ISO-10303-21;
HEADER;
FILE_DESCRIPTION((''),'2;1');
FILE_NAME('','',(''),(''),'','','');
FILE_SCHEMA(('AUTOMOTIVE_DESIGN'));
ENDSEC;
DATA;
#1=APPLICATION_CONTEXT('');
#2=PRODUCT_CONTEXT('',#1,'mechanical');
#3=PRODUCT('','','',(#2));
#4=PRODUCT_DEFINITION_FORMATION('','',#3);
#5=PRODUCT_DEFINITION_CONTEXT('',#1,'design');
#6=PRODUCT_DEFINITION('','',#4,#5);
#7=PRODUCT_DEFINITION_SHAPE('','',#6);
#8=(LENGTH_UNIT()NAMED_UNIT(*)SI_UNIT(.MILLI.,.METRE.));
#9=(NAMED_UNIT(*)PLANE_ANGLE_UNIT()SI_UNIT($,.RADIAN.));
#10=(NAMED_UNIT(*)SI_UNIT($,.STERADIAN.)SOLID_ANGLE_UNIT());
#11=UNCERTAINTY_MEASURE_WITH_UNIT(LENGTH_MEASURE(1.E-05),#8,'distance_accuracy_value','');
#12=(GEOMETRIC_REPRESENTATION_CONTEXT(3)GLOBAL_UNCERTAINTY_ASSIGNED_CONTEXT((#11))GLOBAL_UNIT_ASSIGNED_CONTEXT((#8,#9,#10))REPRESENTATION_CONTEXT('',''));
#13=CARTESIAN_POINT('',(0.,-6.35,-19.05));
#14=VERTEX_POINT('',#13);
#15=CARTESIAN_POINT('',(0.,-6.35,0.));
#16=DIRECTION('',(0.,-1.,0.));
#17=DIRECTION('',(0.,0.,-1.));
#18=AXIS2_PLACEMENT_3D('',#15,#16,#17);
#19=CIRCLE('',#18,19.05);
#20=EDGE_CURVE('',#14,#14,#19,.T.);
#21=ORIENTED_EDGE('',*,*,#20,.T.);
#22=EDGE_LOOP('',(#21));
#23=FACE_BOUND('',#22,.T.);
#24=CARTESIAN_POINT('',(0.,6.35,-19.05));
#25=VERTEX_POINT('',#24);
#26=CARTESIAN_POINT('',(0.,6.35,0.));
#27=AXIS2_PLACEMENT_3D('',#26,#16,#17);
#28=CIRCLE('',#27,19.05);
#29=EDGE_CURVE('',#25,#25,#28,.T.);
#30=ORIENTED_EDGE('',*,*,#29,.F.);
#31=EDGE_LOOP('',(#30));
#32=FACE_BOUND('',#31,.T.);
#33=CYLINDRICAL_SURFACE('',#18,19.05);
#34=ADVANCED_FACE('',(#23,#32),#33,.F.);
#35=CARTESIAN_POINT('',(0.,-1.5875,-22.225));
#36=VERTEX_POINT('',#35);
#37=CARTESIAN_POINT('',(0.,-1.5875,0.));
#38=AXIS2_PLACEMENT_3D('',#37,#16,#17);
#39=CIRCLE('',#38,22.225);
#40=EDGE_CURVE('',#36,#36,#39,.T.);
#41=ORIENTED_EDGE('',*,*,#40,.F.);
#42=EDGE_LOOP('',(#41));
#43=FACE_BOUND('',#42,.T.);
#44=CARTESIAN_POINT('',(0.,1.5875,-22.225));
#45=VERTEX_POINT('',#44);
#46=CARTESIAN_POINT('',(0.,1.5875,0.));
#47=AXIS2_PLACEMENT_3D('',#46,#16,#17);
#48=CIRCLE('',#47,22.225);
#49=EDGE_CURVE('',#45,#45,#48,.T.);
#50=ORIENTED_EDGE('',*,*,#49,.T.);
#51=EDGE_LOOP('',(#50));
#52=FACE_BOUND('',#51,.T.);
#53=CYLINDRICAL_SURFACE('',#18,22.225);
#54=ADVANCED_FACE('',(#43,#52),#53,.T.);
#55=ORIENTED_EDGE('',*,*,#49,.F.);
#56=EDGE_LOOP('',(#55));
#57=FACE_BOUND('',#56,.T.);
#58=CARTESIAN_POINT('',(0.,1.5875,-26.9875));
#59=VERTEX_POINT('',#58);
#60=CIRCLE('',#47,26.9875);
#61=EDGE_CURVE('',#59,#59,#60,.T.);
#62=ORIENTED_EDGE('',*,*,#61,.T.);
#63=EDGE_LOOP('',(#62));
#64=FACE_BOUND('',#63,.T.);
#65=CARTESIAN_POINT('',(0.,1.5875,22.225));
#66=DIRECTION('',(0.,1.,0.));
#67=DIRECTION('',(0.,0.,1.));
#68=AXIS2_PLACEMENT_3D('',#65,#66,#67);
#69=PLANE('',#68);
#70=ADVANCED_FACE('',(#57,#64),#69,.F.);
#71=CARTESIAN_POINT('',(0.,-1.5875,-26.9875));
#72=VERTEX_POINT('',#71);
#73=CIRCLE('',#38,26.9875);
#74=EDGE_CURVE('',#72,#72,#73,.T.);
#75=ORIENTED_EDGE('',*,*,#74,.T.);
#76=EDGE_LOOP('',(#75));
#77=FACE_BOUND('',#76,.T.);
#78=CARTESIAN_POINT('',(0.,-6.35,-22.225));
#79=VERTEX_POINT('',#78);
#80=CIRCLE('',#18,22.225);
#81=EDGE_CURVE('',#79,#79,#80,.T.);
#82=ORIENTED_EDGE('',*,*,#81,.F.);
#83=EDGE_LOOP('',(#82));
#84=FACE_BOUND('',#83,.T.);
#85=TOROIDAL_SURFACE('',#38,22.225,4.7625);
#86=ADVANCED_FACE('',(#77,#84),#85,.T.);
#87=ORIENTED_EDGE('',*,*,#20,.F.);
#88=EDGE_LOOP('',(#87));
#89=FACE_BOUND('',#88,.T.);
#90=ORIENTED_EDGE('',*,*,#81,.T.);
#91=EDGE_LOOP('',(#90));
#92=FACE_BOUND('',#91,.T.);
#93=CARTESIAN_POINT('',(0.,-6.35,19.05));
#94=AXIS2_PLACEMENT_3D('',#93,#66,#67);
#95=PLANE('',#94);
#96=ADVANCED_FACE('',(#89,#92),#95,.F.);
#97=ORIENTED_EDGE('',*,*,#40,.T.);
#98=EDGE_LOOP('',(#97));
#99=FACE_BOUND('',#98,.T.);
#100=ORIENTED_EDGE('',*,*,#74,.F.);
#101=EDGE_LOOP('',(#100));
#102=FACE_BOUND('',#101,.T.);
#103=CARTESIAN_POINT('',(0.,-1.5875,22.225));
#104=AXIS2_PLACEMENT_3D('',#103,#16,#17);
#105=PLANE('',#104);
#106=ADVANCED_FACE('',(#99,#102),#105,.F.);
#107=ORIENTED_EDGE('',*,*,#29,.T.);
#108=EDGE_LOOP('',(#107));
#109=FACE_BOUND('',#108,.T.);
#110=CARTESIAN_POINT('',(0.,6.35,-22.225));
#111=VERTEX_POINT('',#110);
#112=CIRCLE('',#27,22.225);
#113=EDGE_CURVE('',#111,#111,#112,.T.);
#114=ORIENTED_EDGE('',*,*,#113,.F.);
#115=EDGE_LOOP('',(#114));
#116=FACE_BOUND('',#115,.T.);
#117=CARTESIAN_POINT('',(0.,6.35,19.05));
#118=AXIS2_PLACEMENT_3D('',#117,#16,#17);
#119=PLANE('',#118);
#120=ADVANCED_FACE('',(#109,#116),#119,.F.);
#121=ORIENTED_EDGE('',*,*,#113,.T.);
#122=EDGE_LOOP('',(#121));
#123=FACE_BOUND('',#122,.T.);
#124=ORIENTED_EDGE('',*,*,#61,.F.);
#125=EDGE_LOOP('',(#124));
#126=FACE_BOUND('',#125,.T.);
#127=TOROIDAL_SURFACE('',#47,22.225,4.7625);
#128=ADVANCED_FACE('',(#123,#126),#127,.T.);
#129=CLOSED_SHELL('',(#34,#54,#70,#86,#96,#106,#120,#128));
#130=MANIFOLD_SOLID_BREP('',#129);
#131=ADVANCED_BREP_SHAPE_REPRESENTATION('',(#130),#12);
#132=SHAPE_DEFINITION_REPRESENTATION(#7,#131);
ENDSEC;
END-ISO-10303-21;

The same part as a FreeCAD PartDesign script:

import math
import FreeCAD as App
import Part
import Sketcher
from FreeCAD import Vector
Q = App.Units.Quantity

doc = App.newDocument("Part")
body = doc.addObject("PartDesign::Body", "Body")

# Sketch on YZ plane
sketch1 = body.newObject("Sketcher::SketchObject", "Sketch")
sketch1.AttachmentSupport = (doc.getObject("YZ_Plane"), [""])
sketch1.MapMode = "FlatFace"
sketch1.addGeometry([
    Part.LineSegment(Vector(-6.35, 19.05, 0), Vector(6.35, 19.05, 0)),  # 0
    Part.LineSegment(Vector(6.35, 19.05, 0), Vector(6.35, 22.225, 0)),  # 1
    Part.ArcOfCircle(Part.Circle(Vector(1.5875, 22.225, 0), Vector(0, 0, 1), 4.7625), math.radians(0), math.radians(90)),  # 2
    Part.LineSegment(Vector(1.5875, 26.9875, 0), Vector(1.5875, 22.225, 0)),  # 3
    Part.LineSegment(Vector(1.5875, 22.225, 0), Vector(-1.5875, 22.225, 0)),  # 4
    Part.LineSegment(Vector(-1.5875, 22.225, 0), Vector(-1.5875, 26.9875, 0)),  # 5
    Part.ArcOfCircle(Part.Circle(Vector(-1.5875, 22.225, 0), Vector(0, 0, 1), 4.7625), math.radians(90), math.radians(180)),  # 6
    Part.LineSegment(Vector(-6.35, 22.225, 0), Vector(-6.35, 19.05, 0)),  # 7
], False)
sketch1.addConstraint([
    Sketcher.Constraint("Coincident", 0, 2, 1, 1),
    Sketcher.Constraint("Tangent", 1, 2, 2, 1),
    Sketcher.Constraint("Coincident", 2, 2, 3, 1),
    Sketcher.Constraint("Coincident", 3, 2, 4, 1),
    Sketcher.Constraint("Coincident", 4, 2, 5, 1),
    Sketcher.Constraint("Coincident", 5, 2, 6, 1),
    Sketcher.Constraint("Tangent", 6, 2, 7, 1),
    Sketcher.Constraint("Coincident", 7, 2, 0, 1),
    Sketcher.Constraint("Horizontal", 0),
    Sketcher.Constraint("Vertical", 1),
    Sketcher.Constraint("Vertical", 3),
    Sketcher.Constraint("Horizontal", 4),
    Sketcher.Constraint("Vertical", 5),
    Sketcher.Constraint("Vertical", 7),
    Sketcher.Constraint("Coincident", 3, 2, 2, 3),
    Sketcher.Constraint("Coincident", 4, 2, 6, 3),
    Sketcher.Constraint("Equal", 2, 6),
    Sketcher.Constraint("Equal", 4, 1),
    Sketcher.Constraint("DistanceX", 0, 1, 0, 2, Q("0.5 in")),
    Sketcher.Constraint("Radius", 2, Q("0.1875 in")),
    Sketcher.Constraint("DistanceX", -1, 1, 0, 2, Q("0.25 in")),
    Sketcher.Constraint("DistanceY", -1, 1, 0, 2, Q("0.75 in")),
])
revolution = body.newObject("PartDesign::Revolution", "Revolution")
revolution.Profile = sketch1
revolution.ReferenceAxis = (sketch1, ["H_Axis"])
revolution.Angle = 360

doc.recompute()
